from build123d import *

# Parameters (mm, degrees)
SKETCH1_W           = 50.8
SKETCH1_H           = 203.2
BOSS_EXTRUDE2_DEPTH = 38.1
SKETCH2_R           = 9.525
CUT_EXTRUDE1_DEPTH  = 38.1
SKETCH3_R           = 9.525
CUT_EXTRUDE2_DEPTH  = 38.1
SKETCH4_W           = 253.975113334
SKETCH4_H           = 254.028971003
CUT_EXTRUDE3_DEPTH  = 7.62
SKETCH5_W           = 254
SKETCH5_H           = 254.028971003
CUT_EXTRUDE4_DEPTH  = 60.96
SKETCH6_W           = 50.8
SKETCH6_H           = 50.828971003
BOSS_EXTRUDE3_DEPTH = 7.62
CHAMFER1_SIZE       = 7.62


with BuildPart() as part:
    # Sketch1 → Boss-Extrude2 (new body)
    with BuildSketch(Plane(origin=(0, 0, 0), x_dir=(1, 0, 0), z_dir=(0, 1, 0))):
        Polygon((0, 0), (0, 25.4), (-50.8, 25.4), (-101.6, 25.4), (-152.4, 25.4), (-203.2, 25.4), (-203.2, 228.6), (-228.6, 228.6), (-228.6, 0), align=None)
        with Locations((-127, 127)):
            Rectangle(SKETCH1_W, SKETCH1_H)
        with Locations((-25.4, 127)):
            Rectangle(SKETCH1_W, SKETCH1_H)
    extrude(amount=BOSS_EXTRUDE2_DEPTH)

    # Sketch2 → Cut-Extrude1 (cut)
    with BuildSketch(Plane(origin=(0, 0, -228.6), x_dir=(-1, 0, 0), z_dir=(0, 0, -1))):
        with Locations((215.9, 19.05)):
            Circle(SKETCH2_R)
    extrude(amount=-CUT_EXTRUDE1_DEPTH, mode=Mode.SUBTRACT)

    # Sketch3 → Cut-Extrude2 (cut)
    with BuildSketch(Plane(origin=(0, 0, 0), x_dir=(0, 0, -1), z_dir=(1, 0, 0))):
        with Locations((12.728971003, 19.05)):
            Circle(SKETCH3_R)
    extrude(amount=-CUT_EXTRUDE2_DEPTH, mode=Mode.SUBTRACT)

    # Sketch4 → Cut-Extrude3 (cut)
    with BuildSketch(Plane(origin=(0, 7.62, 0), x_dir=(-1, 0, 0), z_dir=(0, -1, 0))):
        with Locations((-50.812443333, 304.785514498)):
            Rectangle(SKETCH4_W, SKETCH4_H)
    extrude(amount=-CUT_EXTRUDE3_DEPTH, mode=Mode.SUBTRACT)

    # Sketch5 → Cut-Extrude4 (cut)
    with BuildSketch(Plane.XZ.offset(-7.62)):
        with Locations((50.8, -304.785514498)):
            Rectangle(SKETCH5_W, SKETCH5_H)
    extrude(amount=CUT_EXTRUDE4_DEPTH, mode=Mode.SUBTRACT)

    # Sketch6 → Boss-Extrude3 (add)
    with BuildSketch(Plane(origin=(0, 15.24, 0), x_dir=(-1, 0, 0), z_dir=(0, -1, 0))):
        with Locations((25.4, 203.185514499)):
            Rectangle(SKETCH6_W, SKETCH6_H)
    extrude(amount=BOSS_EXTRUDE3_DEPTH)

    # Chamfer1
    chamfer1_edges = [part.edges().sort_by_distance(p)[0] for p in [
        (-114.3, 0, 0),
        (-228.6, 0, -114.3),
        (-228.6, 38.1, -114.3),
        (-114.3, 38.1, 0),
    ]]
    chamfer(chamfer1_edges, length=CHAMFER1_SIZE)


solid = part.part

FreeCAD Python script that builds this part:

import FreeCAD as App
import Part
import Sketcher

V = App.Vector
Q = App.Units.Quantity


def edges_at(feature, points):
    """Names of the edges that pass closest to the given points."""
    edges = feature.Shape.Edges
    near = lambda p: min(range(len(edges)), key=lambda i: edges[i].distToShape(Part.Vertex(*p))[0])
    return sorted({f"Edge{near(p) + 1}" for p in points})


def add_polygon(sketch, points):
    """Adds a closed chain of lines whose ends are joined by coincident constraints."""
    first, n = sketch.GeometryCount, len(points)
    for a, b in zip(points, points[1:] + points[:1]):
        sketch.addGeometry(Part.LineSegment(App.Vector(*a, 0), App.Vector(*b, 0)), False)
    for i in range(n):
        sketch.addConstraint(Sketcher.Constraint("Coincident", first + i, 2, first + (i + 1) % n, 1))

doc = App.newDocument("Part")
params = doc.addObject("Spreadsheet::Sheet", "Params")
for row, (alias, value) in enumerate([
    ("sketch1_width", "2 in"),
    ("sketch1_width2", "1 in"),
    ("sketch1_height", "8 in"),
    ("pad1_length", "1.5 in"),
    ("sketch2_diameter", "0.75 in"),
    ("pocket1_length", "1.5 in"),
    ("sketch3_diameter", "0.75 in"),
    ("pocket2_length", "1.5 in"),
    ("pocket3_length", "0.3 in"),
    ("sketch5_width", "10 in"),
    ("pocket4_length", "2.4 in"),
    ("sketch6_width", "2 in"),
    ("pad2_length", "0.3 in"),
    ("chamfer_size", "0.3 in"),
], start=1):
    params.set(f"A{row}", alias)
    params.set(f"B{row}", "=" + value)
    params.setAlias(f"B{row}", alias)

body = doc.addObject("PartDesign::Body", "Body")

sketch1 = body.newObject("Sketcher::SketchObject", "Sketch")
sketch1.AttachmentSupport = (doc.getObject("XZ_Plane"), [""])
sketch1.MapMode = "FlatFace"
add_polygon(sketch1, [(0, 0), (0, -229), (-51, -229), (-51, -25), (-102, -25), (-102, -229), (-152, -229), (-152, -25), (-203, -25), (-203, -229), (-229, -229), (-229, 0)])
sketch1.addConstraint([
    Sketcher.Constraint("Vertical", 0),
    Sketcher.Constraint("Horizontal", 1),
    Sketcher.Constraint("Vertical", 2),
    Sketcher.Constraint("Horizontal", 3),
    Sketcher.Constraint("Vertical", 4),
    Sketcher.Constraint("Horizontal", 5),
    Sketcher.Constraint("Vertical", 6),
    Sketcher.Constraint("Horizontal", 7),
    Sketcher.Constraint("Vertical", 8),
    Sketcher.Constraint("Horizontal", 9),
    Sketcher.Constraint("Vertical", 10),
    Sketcher.Constraint("Horizontal", 11),
    Sketcher.Constraint("Coincident", 11, 2, -1, 1),
    Sketcher.Constraint("Horizontal", 1, 2, 4, 2),
    Sketcher.Constraint("Horizontal", 3, 2, 6, 2),
    Sketcher.Constraint("Horizontal", 5, 2, 8, 2),
    Sketcher.Constraint("Equal", 1, 3),
    Sketcher.Constraint("Equal", 3, 5),
    Sketcher.Constraint("Equal", 5, 7),
    Sketcher.Constraint("Equal", 11, 0),
    Sketcher.Constraint("DistanceX", 1, 2, 1, 1, Q("2 in")),
    Sketcher.Constraint("DistanceX", 9, 2, 9, 1, Q("1 in")),
    Sketcher.Constraint("DistanceY", 2, 1, 2, 2, Q("8 in")),
])
sketch1.setExpression("Constraints[32]", "Params.sketch1_width")
sketch1.setExpression("Constraints[33]", "Params.sketch1_width2")
sketch1.setExpression("Constraints[34]", "Params.sketch1_height")
pad1 = body.newObject("PartDesign::Pad", "Pad")
pad1.Profile = sketch1
pad1.setExpression("Length", "Params.pad1_length")
pad1.Reversed = True

sketch2 = body.newObject("Sketcher::SketchObject", "Sketch001")
sketch2.AttachmentSupport = (doc.getObject("XY_Plane"), [""])
sketch2.MapMode = "FlatFace"
sketch2.AttachmentOffset = App.Placement(V(0, 0, -9 * 25.4), App.Rotation())
sketch2.addGeometry(Part.Circle(V(-216, 19, 0), V(0, 0, 1), 10), False)
sketch2.addConstraint([
    Sketcher.Constraint("Diameter", 0, Q("0.75 in")),
    Sketcher.Constraint("DistanceX", 0, 3, -1, 1, Q("8.5 in")),
    Sketcher.Constraint("DistanceY", -1, 1, 0, 3, Q("0.75 in")),
])
sketch2.setExpression("Constraints[0]", "Params.sketch2_diameter")
pocket1 = body.newObject("PartDesign::Pocket", "Pocket")
pocket1.Profile = sketch2
pocket1.setExpression("Length", "Params.pocket1_length")
pocket1.Reversed = True

sketch3 = body.newObject("Sketcher::SketchObject", "Sketch002")
sketch3.AttachmentSupport = (doc.getObject("YZ_Plane"), [""])
sketch3.MapMode = "FlatFace"
sketch3.addGeometry(Part.Circle(V(19, -13, 0), V(0, 0, 1), 10), False)
sketch3.addConstraint([
    Sketcher.Constraint("Diameter", 0, Q("0.75 in")),
    Sketcher.Constraint("DistanceX", -1, 1, 0, 3, Q("0.75 in")),
    Sketcher.Constraint("DistanceY", 0, 3, -1, 1, Q("12.728971 mm")),
])
sketch3.setExpression("Constraints[0]", "Params.sketch3_diameter")
pocket2 = body.newObject("PartDesign::Pocket", "Pocket001")
pocket2.Profile = sketch3
pocket2.setExpression("Length", "Params.pocket2_length")

sketch4 = body.newObject("Sketcher::SketchObject", "Sketch003")
sketch4.AttachmentSupport = (doc.getObject("XZ_Plane"), [""])
sketch4.MapMode = "FlatFace"
sketch4.AttachmentOffset = App.Placement(V(0, 0, -0.3 * 25.4), App.Rotation())
add_polygon(sketch4, [(178, -432), (178, -178), (-76, -178), (-76, -432)])
sketch4.addConstraint([
    Sketcher.Constraint("Vertical", 0),
    Sketcher.Constraint("Horizontal", 1),
    Sketcher.Constraint("Vertical", 2),
    Sketcher.Constraint("Horizontal", 3),
    Sketcher.Constraint("DistanceX", -1, 1, 0, 2, Q("7 in")),
    Sketcher.Constraint("DistanceY", 2, 2, -1, 1, Q("17 in")),
    Sketcher.Constraint("DistanceY", 0, 1, 0, 2, Q("254.028971 mm")),
    Sketcher.Constraint("DistanceX", 1, 2, 1, 1, Q("253.975113 mm")),
])
pocket3 = body.newObject("PartDesign::Pocket", "Pocket002")
pocket3.Profile = sketch4
pocket3.setExpression("Length", "Params.pocket3_length")

sketch5 = body.newObject("Sketcher::SketchObject", "Sketch004")
sketch5.AttachmentSupport = (doc.getObject("XZ_Plane"), [""])
sketch5.MapMode = "FlatFace"
sketch5.AttachmentOffset = App.Placement(V(0, 0, -0.3 * 25.4), App.Rotation())
add_polygon(sketch5, [(-76, -178), (-76, -432), (178, -432), (178, -178)])
sketch5.addConstraint([
    Sketcher.Constraint("Vertical", 0),
    Sketcher.Constraint("Horizontal", 1),
    Sketcher.Constraint("Vertical", 2),
    Sketcher.Constraint("Horizontal", 3),
    Sketcher.Constraint("DistanceX", 1, 1, 1, 2, Q("10 in")),
    Sketcher.Constraint("DistanceX", 0, 2, -1, 1, Q("3 in")),
    Sketcher.Constraint("DistanceY", 0, 2, -1, 1, Q("17 in")),
    Sketcher.Constraint("DistanceY", 0, 2, 0, 1, Q("254.028971 mm")),
])
sketch5.setExpression("Constraints[8]", "Params.sketch5_width")
pocket4 = body.newObject("PartDesign::Pocket", "Pocket003")
pocket4.Profile = sketch5
pocket4.setExpression("Length", "Params.pocket4_length")
pocket4.Reversed = True

sketch6 = body.newObject("Sketcher::SketchObject", "Sketch005")
sketch6.AttachmentSupport = (doc.getObject("XZ_Plane"), [""])
sketch6.MapMode = "FlatFace"
sketch6.AttachmentOffset = App.Placement(V(0, 0, -0.6 * 25.4), App.Rotation())
add_polygon(sketch6, [(0, -229), (0, -178), (-51, -178), (-51, -229)])
sketch6.addConstraint([
    Sketcher.Constraint("Vertical", 0),
    Sketcher.Constraint("Horizontal", 1),
    Sketcher.Constraint("Vertical", 2),
    Sketcher.Constraint("Horizontal", 3),
    Sketcher.Constraint("PointOnObject", 0, 2, -2),
    Sketcher.Constraint("DistanceX", 1, 2, 1, 1, Q("2 in")),
    Sketcher.Constraint("DistanceY", 2, 2, -1, 1, Q("9 in")),
    Sketcher.Constraint("DistanceY", 0, 1, 0, 2, Q("50.828971 mm")),
])
sketch6.setExpression("Constraints[9]", "Params.sketch6_width")
pad2 = body.newObject("PartDesign::Pad", "Pad001")
pad2.Profile = sketch6
pad2.setExpression("Length", "Params.pad2_length")
doc.recompute()

chamfer = body.newObject("PartDesign::Chamfer", "Chamfer")
chamfer.Base = (pad2, edges_at(pad2, [
    (-114.3, 0, 0),
    (-228.6, 0, -114.3),
    (-228.6, 38.1, -114.3),
    (-114.3, 38.1, 0),
]))
chamfer.setExpression("Size", "Params.chamfer_size")

doc.recompute()
